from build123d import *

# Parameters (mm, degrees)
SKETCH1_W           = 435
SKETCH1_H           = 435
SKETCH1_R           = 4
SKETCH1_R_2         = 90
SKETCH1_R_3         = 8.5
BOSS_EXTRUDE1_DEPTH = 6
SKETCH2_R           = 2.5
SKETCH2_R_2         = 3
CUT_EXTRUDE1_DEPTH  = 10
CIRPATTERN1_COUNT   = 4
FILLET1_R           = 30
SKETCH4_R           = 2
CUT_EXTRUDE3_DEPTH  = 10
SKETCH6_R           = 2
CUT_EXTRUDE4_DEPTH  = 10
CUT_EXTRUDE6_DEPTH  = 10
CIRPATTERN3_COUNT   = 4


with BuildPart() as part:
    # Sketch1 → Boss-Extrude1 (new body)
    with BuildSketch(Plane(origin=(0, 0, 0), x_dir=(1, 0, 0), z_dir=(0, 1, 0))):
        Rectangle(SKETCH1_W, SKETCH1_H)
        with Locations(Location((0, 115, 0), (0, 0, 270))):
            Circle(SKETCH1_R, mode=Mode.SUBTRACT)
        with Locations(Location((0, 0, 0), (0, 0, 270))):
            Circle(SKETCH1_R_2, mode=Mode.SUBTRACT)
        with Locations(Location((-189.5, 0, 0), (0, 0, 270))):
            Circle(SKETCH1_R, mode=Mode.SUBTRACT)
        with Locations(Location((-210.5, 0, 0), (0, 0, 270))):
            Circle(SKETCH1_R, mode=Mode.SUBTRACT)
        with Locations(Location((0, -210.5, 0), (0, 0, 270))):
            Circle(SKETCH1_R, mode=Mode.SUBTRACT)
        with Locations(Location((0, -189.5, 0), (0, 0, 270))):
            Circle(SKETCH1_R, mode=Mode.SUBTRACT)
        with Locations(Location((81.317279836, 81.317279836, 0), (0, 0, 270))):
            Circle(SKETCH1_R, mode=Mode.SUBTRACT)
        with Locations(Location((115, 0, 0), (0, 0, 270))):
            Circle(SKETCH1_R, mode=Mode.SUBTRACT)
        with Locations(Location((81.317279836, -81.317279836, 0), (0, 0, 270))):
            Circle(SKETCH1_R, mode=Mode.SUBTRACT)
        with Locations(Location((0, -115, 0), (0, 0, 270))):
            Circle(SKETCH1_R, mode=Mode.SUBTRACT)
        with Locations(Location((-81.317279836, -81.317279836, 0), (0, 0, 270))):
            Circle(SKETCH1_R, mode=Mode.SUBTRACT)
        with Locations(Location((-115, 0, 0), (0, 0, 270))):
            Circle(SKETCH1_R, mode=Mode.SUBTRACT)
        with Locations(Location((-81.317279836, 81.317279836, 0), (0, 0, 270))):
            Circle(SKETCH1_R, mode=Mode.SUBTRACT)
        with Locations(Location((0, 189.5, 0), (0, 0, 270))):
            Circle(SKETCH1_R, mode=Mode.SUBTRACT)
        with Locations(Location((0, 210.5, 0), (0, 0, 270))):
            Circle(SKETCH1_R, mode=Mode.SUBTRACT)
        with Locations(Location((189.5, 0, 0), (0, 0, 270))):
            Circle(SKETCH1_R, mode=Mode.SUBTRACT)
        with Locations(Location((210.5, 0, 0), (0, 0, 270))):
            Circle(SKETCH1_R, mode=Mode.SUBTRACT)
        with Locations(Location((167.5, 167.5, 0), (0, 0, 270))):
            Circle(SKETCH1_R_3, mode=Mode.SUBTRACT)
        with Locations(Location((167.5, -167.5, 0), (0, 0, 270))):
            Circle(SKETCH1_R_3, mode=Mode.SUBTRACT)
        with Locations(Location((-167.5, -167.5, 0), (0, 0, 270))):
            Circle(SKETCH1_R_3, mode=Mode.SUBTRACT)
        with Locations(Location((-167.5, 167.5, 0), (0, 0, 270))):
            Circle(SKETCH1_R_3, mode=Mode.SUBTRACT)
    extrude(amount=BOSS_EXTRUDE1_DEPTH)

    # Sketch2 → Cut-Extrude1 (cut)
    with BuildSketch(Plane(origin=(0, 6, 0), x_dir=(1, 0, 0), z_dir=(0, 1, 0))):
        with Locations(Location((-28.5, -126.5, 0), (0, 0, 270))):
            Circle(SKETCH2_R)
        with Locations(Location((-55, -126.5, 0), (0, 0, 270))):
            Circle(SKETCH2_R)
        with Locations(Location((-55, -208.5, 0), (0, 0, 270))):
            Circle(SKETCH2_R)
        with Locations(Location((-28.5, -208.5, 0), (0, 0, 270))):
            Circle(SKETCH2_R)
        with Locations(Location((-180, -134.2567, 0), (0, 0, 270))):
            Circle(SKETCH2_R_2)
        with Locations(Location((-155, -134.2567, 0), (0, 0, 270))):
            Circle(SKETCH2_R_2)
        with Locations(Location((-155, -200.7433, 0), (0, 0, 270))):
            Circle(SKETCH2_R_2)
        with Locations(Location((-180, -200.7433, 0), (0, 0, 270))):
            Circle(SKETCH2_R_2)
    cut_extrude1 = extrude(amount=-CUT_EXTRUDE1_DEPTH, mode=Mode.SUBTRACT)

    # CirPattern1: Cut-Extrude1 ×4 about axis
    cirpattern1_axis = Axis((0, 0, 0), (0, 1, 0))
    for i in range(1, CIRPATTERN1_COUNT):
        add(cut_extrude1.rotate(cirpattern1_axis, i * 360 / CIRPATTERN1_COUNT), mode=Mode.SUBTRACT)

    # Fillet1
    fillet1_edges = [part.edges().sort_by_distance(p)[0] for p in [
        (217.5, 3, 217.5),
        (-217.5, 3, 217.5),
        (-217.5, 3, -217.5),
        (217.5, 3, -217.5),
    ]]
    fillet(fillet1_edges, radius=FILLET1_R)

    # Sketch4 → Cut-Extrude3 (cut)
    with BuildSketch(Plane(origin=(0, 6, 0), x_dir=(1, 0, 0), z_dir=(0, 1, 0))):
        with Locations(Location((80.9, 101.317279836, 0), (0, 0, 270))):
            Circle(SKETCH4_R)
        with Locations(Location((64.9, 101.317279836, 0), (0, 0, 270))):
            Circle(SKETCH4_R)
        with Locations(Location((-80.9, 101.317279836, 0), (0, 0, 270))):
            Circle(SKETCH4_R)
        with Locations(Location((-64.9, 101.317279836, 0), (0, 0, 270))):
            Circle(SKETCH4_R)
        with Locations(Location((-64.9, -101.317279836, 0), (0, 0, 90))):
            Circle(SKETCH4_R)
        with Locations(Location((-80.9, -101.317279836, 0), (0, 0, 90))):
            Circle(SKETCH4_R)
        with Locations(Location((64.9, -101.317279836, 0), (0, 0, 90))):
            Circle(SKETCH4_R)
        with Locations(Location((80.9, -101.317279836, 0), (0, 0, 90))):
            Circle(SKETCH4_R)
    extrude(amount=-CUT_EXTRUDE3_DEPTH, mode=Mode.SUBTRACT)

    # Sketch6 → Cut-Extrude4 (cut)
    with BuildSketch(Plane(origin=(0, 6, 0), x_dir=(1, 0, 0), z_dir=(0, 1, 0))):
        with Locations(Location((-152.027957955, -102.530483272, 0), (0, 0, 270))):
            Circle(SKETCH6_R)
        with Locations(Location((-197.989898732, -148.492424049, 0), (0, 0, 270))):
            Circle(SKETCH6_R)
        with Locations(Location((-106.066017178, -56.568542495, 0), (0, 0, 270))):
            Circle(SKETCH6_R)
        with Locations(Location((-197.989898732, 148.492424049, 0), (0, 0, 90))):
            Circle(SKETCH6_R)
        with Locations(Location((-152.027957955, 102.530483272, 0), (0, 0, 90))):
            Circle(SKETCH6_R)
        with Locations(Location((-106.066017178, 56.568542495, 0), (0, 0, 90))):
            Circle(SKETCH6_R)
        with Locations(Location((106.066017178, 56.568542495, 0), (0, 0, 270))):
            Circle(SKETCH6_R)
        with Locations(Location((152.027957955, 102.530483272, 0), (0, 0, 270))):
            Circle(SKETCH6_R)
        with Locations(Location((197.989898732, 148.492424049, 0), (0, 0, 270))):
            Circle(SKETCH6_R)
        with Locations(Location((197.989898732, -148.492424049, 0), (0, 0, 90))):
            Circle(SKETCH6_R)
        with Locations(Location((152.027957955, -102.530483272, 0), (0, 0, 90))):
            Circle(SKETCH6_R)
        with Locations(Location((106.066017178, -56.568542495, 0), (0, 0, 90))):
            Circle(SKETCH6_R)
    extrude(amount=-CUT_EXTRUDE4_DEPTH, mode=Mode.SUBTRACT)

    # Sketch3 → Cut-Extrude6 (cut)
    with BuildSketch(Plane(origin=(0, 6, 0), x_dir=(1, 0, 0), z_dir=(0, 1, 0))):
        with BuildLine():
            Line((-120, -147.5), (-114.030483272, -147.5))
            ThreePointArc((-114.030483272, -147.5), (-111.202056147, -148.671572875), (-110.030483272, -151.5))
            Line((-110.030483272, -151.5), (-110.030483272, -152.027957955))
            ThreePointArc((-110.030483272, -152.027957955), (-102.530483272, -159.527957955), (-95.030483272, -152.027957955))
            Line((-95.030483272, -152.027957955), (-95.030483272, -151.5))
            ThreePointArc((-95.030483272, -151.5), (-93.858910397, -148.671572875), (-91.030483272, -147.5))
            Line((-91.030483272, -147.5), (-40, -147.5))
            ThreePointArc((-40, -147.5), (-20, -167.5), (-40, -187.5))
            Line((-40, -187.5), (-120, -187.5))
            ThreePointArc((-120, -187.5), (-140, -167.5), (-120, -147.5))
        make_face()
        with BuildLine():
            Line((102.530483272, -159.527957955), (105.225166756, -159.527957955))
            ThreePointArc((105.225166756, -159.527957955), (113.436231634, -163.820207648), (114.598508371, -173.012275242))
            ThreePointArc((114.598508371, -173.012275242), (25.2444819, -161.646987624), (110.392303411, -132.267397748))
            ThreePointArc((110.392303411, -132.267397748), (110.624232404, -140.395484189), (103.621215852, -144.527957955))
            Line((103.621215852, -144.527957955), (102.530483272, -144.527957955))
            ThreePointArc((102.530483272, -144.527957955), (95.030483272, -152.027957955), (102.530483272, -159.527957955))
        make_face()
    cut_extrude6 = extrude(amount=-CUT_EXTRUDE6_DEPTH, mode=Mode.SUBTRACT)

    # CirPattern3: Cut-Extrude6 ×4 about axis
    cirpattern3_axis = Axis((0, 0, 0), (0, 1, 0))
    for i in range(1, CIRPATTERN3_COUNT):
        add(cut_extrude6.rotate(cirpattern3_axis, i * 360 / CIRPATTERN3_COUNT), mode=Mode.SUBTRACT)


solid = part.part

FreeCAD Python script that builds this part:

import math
import FreeCAD as App
import Part
import Sketcher
from FreeCAD import Vector


def edges_at(feature, points):
    """Names of the edges that pass closest to the given points."""
    edges = feature.Shape.Edges
    near = lambda p: min(range(len(edges)), key=lambda i: edges[i].distToShape(Part.Vertex(*p))[0])
    return sorted({f"Edge{near(p) + 1}" for p in points})

doc = App.newDocument("Part")
body = doc.addObject("PartDesign::Body", "Body")

sketch1 = body.newObject("Sketcher::SketchObject", "Sketch")
sketch1.AttachmentSupport = (doc.getObject("XZ_Plane"), [""])
sketch1.MapMode = "FlatFace"
sketch1.addGeometry(Part.LineSegment(Vector(-217.5, -217.5, 0), Vector(-217.5, 217.5, 0)), False)
sketch1.addGeometry(Part.LineSegment(Vector(-217.5, 217.5, 0), Vector(217.5, 217.5, 0)), False)
sketch1.addGeometry(Part.LineSegment(Vector(217.5, 217.5, 0), Vector(217.5, -217.5, 0)), False)
sketch1.addGeometry(Part.LineSegment(Vector(217.5, -217.5, 0), Vector(-217.5, -217.5, 0)), False)
sketch1.addGeometry(Part.Circle(Vector(-167.5, 167.5, 0), Vector(0, 0, 1), 8.5), False)
sketch1.addGeometry(Part.Circle(Vector(-81.3, 81.3, 0), Vector(0, 0, 1), 4), False)
sketch1.addGeometry(Part.Circle(Vector(0, 210.5, 0), Vector(0, 0, 1), 4), False)
sketch1.addGeometry(Part.Circle(Vector(0, 189.5, 0), Vector(0, 0, 1), 4), False)
sketch1.addGeometry(Part.Circle(Vector(0, 115, 0), Vector(0, 0, 1), 4), False)
sketch1.addGeometry(Part.Circle(Vector(167.5, 167.5, 0), Vector(0, 0, 1), 8.5), False)
sketch1.addGeometry(Part.Circle(Vector(81.3, 81.3, 0), Vector(0, 0, 1), 4), False)
sketch1.addGeometry(Part.Circle(Vector(-210.5, 0, 0), Vector(0, 0, 1), 4), False)
sketch1.addGeometry(Part.Circle(Vector(-189.5, 0, 0), Vector(0, 0, 1), 4), False)
sketch1.addGeometry(Part.Circle(Vector(-115, 0, 0), Vector(0, 0, 1), 4), False)
sketch1.addGeometry(Part.Circle(Vector(-81.3, -81.3, 0), Vector(0, 0, 1), 4), False)
sketch1.addGeometry(Part.Circle(Vector(-167.5, -167.5, 0), Vector(0, 0, 1), 8.5), False)
sketch1.addGeometry(Part.Circle(Vector(0, 0, 0), Vector(0, 0, 1), 90), False)
sketch1.addGeometry(Part.Circle(Vector(81.3, -81.3, 0), Vector(0, 0, 1), 4), False)
sketch1.addGeometry(Part.Circle(Vector(115, 0, 0), Vector(0, 0, 1), 4), False)
sketch1.addGeometry(Part.Circle(Vector(189.5, 0, 0), Vector(0, 0, 1), 4), False)
sketch1.addGeometry(Part.Circle(Vector(210.5, 0, 0), Vector(0, 0, 1), 4), False)
sketch1.addGeometry(Part.Circle(Vector(0, -115, 0), Vector(0, 0, 1), 4), False)
sketch1.addGeometry(Part.Circle(Vector(0, -189.5, 0), Vector(0, 0, 1), 4), False)
sketch1.addGeometry(Part.Circle(Vector(0, -210.5, 0), Vector(0, 0, 1), 4), False)
sketch1.addGeometry(Part.Circle(Vector(167.5, -167.5, 0), Vector(0, 0, 1), 8.5), False)
sketch1.addConstraint(Sketcher.Constraint("Coincident", 0, 2, 1, 1))
sketch1.addConstraint(Sketcher.Constraint("Coincident", 1, 2, 2, 1))
sketch1.addConstraint(Sketcher.Constraint("Coincident", 2, 2, 3, 1))
sketch1.addConstraint(Sketcher.Constraint("Coincident", 3, 2, 0, 1))
sketch1.addConstraint(Sketcher.Constraint("Vertical", 0))
sketch1.addConstraint(Sketcher.Constraint("Horizontal", 1))
sketch1.addConstraint(Sketcher.Constraint("Vertical", 2))
sketch1.addConstraint(Sketcher.Constraint("Horizontal", 3))
sketch1.addConstraint(Sketcher.Constraint("Coincident", 16, 3, -1, 1))
sketch1.addConstraint(Sketcher.Constraint("Equal", 5, 6))
sketch1.addConstraint(Sketcher.Constraint("Equal", 6, 7))
sketch1.addConstraint(Sketcher.Constraint("Equal", 7, 8))
sketch1.addConstraint(Sketcher.Constraint("Equal", 4, 9))
sketch1.addConstraint(Sketcher.Constraint("Equal", 8, 10))
sketch1.addConstraint(Sketcher.Constraint("Equal", 10, 11))
sketch1.addConstraint(Sketcher.Constraint("Equal", 11, 12))
sketch1.addConstraint(Sketcher.Constraint("Equal", 12, 13))
sketch1.addConstraint(Sketcher.Constraint("Equal", 13, 14))
sketch1.addConstraint(Sketcher.Constraint("Equal", 9, 15))
sketch1.addConstraint(Sketcher.Constraint("Equal", 14, 17))
sketch1.addConstraint(Sketcher.Constraint("Equal", 17, 18))
sketch1.addConstraint(Sketcher.Constraint("Equal", 18, 19))
sketch1.addConstraint(Sketcher.Constraint("Equal", 19, 20))
sketch1.addConstraint(Sketcher.Constraint("Equal", 20, 21))
sketch1.addConstraint(Sketcher.Constraint("Equal", 21, 22))
sketch1.addConstraint(Sketcher.Constraint("Equal", 22, 23))
sketch1.addConstraint(Sketcher.Constraint("Equal", 15, 24))
sketch1.addConstraint(Sketcher.Constraint("Symmetric", 10, 3, 14, 3, -1, 1))
sketch1.addConstraint(Sketcher.Constraint("Symmetric", 9, 3, 15, 3, -1, 1))
sketch1.addConstraint(Sketcher.Constraint("Symmetric", 5, 3, 17, 3, -1, 1))
sketch1.addConstraint(Sketcher.Constraint("Symmetric", 13, 3, 18, 3, -1, 1))
sketch1.addConstraint(Sketcher.Constraint("Symmetric", 12, 3, 19, 3, -1, 1))
sketch1.addConstraint(Sketcher.Constraint("Symmetric", 11, 3, 20, 3, -1, 1))
sketch1.addConstraint(Sketcher.Constraint("Symmetric", 8, 3, 21, 3, -1, 1))
sketch1.addConstraint(Sketcher.Constraint("Symmetric", 7, 3, 22, 3, -1, 1))
sketch1.addConstraint(Sketcher.Constraint("Symmetric", 6, 3, 23, 3, -1, 1))
sketch1.addConstraint(Sketcher.Constraint("Symmetric", 4, 3, 24, 3, -1, 1))
sketch1.addConstraint(Sketcher.Constraint("Symmetric", 0, 2, 2, 2, -1, 1))
sketch1.addConstraint(Sketcher.Constraint("Symmetric", 4, 3, 9, 3, -2))
sketch1.addConstraint(Sketcher.Constraint("Symmetric", 5, 3, 10, 3, -2))
sketch1.addConstraint(Sketcher.Constraint("PointOnObject", 6, 3, -2))
sketch1.addConstraint(Sketcher.Constraint("PointOnObject", 7, 3, -2))
sketch1.addConstraint(Sketcher.Constraint("PointOnObject", 8, 3, -2))
sketch1.addConstraint(Sketcher.Constraint("PointOnObject", 11, 3, -1))
sketch1.addConstraint(Sketcher.Constraint("PointOnObject", 12, 3, -1))
sketch1.addConstraint(Sketcher.Constraint("PointOnObject", 13, 3, -1))
sketch1.addConstraint(Sketcher.Constraint("Equal", 3, 0))
sketch1.addConstraint(Sketcher.Constraint("Diameter", 4, 17.0))
sketch1.addConstraint(Sketcher.Constraint("Diameter", 5, 8.0))
sketch1.addConstraint(Sketcher.Constraint("Diameter", 16, 180.0))
sketch1.addConstraint(Sketcher.Constraint("DistanceX", 1, 1, 1, 2, 435.0))
sketch1.addConstraint(Sketcher.Constraint("DistanceY", -1, 1, 8, 3, 115.0))
sketch1.addConstraint(Sketcher.Constraint("DistanceX", 13, 3, -1, 1, 115.0))
sketch1.addConstraint(Sketcher.Constraint("DistanceY", 4, 3, 6, 3, 43.0))
sketch1.addConstraint(Sketcher.Constraint("DistanceY", 7, 3, 6, 3, 21.0))
sketch1.addConstraint(Sketcher.Constraint("DistanceX", 4, 3, 9, 3, 335.0))
sketch1.addConstraint(Sketcher.Constraint("DistanceX", 11, 3, 4, 3, 43.0))
sketch1.addConstraint(Sketcher.Constraint("DistanceX", 11, 3, 12, 3, 21.0))
sketch1.addConstraint(Sketcher.Constraint("DistanceY", 4, 3, 0, 2, 50.0))
sketch1.addConstraint(Sketcher.Constraint("DistanceX", 5, 3, -1, 1, 81.31728))
sketch1.addConstraint(Sketcher.Constraint("DistanceY", -1, 1, 5, 3, 81.31728))
pad1 = body.newObject("PartDesign::Pad", "Pad")
pad1.Profile = sketch1
pad1.Length = 6
pad1.Reversed = True

sketch2 = body.newObject("Sketcher::SketchObject", "Sketch001")
sketch2.AttachmentSupport = (doc.getObject("XZ_Plane"), [""])
sketch2.MapMode = "FlatFace"
sketch2.AttachmentOffset = App.Placement(Vector(0, 0, -6), App.Rotation())
sketch2.addGeometry(Part.Circle(Vector(-28.5, 126.5, 0), Vector(0, 0, 1), 2.5), False)
sketch2.addGeometry(Part.Circle(Vector(-55, 126.5, 0), Vector(0, 0, 1), 2.5), False)
sketch2.addGeometry(Part.Circle(Vector(-55, 208.5, 0), Vector(0, 0, 1), 2.5), False)
sketch2.addGeometry(Part.Circle(Vector(-28.5, 208.5, 0), Vector(0, 0, 1), 2.5), False)
sketch2.addGeometry(Part.Circle(Vector(-180, 134.3, 0), Vector(0, 0, 1), 3), False)
sketch2.addGeometry(Part.Circle(Vector(-155, 134.3, 0), Vector(0, 0, 1), 3), False)
sketch2.addGeometry(Part.Circle(Vector(-155, 200.7, 0), Vector(0, 0, 1), 3), False)
sketch2.addGeometry(Part.Circle(Vector(-180, 200.7, 0), Vector(0, 0, 1), 3), False)
sketch2.addConstraint(Sketcher.Constraint("Equal", 0, 1))
sketch2.addConstraint(Sketcher.Constraint("Equal", 1, 2))
sketch2.addConstraint(Sketcher.Constraint("Equal", 2, 3))
sketch2.addConstraint(Sketcher.Constraint("Equal", 4, 5))
sketch2.addConstraint(Sketcher.Constraint("Equal", 5, 6))
sketch2.addConstraint(Sketcher.Constraint("Equal", 6, 7))
sketch2.addConstraint(Sketcher.Constraint("Horizontal", 0, 3, 1, 3))
sketch2.addConstraint(Sketcher.Constraint("Horizontal", 2, 3, 3, 3))
sketch2.addConstraint(Sketcher.Constraint("Horizontal", 4, 3, 5, 3))
sketch2.addConstraint(Sketcher.Constraint("Horizontal", 6, 3, 7, 3))
sketch2.addConstraint(Sketcher.Constraint("Vertical", 1, 3, 2, 3))
sketch2.addConstraint(Sketcher.Constraint("Vertical", 0, 3, 3, 3))
sketch2.addConstraint(Sketcher.Constraint("Vertical", 5, 3, 6, 3))
sketch2.addConstraint(Sketcher.Constraint("Vertical", 4, 3, 7, 3))
sketch2.addConstraint(Sketcher.Constraint("Diameter", 0, 5.0))
sketch2.addConstraint(Sketcher.Constraint("Diameter", 4, 6.0))
sketch2.addConstraint(Sketcher.Constraint("DistanceX", 1, 3, -1, 1, 55.0))
sketch2.addConstraint(Sketcher.Constraint("DistanceX", 4, 3, -1, 1, 180.0))
sketch2.addConstraint(Sketcher.Constraint("DistanceX", 5, 3, -1, 1, 155.0))
sketch2.addConstraint(Sketcher.Constraint("DistanceY", 1, 3, 2, 3, 82.0))
sketch2.addConstraint(Sketcher.Constraint("DistanceX", 0, 3, -1, 1, 28.5))
sketch2.addConstraint(Sketcher.Constraint("DistanceY", -1, 1, 0, 3, 126.5))
sketch2.addConstraint(Sketcher.Constraint("DistanceY", -1, 1, 4, 3, 134.2567))
sketch2.addConstraint(Sketcher.Constraint("DistanceY", -1, 1, 6, 3, 200.7433))
pocket1 = body.newObject("PartDesign::Pocket", "Pocket")
pocket1.Profile = sketch2
pocket1.Length = 10
pocket1.Reversed = True
doc.recompute()

polarpattern = body.newObject("PartDesign::PolarPattern", "PolarPattern")
polarpattern.Originals = [pocket1]
polarpattern.Axis = (doc.getObject("Y_Axis"), [""])
polarpattern.Angle = 360
polarpattern.Occurrences = 4
body.Tip = polarpattern
doc.recompute()

fillet = body.newObject("PartDesign::Fillet", "Fillet")
fillet.Base = (polarpattern, edges_at(polarpattern, [
    (217.5, 3, 217.5),
    (-217.5, 3, 217.5),
    (-217.5, 3, -217.5),
    (217.5, 3, -217.5),
]))
fillet.Radius = 30

sketch3 = body.newObject("Sketcher::SketchObject", "Sketch002")
sketch3.AttachmentSupport = (doc.getObject("XZ_Plane"), [""])
sketch3.MapMode = "FlatFace"
sketch3.AttachmentOffset = App.Placement(Vector(0, 0, -6), App.Rotation())
sketch3.addGeometry(Part.Circle(Vector(80.9, -101.3, 0), Vector(0, 0, 1), 2), False)
sketch3.addGeometry(Part.Circle(Vector(64.9, -101.3, 0), Vector(0, 0, 1), 2), False)
sketch3.addGeometry(Part.Circle(Vector(-80.9, -101.3, 0), Vector(0, 0, 1), 2), False)
sketch3.addGeometry(Part.Circle(Vector(-64.9, -101.3, 0), Vector(0, 0, 1), 2), False)
sketch3.addGeometry(Part.Circle(Vector(-64.9, 101.3, 0), Vector(0, 0, 1), 2), False)
sketch3.addGeometry(Part.Circle(Vector(-80.9, 101.3, 0), Vector(0, 0, 1), 2), False)
sketch3.addGeometry(Part.Circle(Vector(64.9, 101.3, 0), Vector(0, 0, 1), 2), False)
sketch3.addGeometry(Part.Circle(Vector(80.9, 101.3, 0), Vector(0, 0, 1), 2), False)
sketch3.addConstraint(Sketcher.Constraint("Equal", 0, 1))
sketch3.addConstraint(Sketcher.Constraint("Equal", 1, 2))
sketch3.addConstraint(Sketcher.Constraint("Equal", 2, 3))
sketch3.addConstraint(Sketcher.Constraint("Equal", 3, 4))
sketch3.addConstraint(Sketcher.Constraint("Equal", 4, 5))
sketch3.addConstraint(Sketcher.Constraint("Equal", 5, 6))
sketch3.addConstraint(Sketcher.Constraint("Equal", 6, 7))
sketch3.addConstraint(Sketcher.Constraint("Symmetric", 1, 3, 4, 3, -1, 1))
sketch3.addConstraint(Sketcher.Constraint("Symmetric", 0, 3, 5, 3, -1, 1))
sketch3.addConstraint(Sketcher.Constraint("Symmetric", 3, 3, 6, 3, -1, 1))
sketch3.addConstraint(Sketcher.Constraint("Symmetric", 2, 3, 7, 3, -1, 1))
sketch3.addConstraint(Sketcher.Constraint("Symmetric", 0, 3, 2, 3, -2))
sketch3.addConstraint(Sketcher.Constraint("Symmetric", 1, 3, 3, 3, -2))
sketch3.addConstraint(Sketcher.Constraint("Horizontal", 0, 3, 1, 3))
sketch3.addConstraint(Sketcher.Constraint("Diameter", 0, 4.0))
sketch3.addConstraint(Sketcher.Constraint("DistanceX", 1, 3, 0, 3, 16.0))
sketch3.addConstraint(Sketcher.Constraint("DistanceX", -1, 1, 0, 3, 80.9))
sketch3.addConstraint(Sketcher.Constraint("DistanceY", 0, 3, -1, 1, 101.31728))
pocket2 = body.newObject("PartDesign::Pocket", "Pocket001")
pocket2.Profile = sketch3
pocket2.Length = 10
pocket2.Reversed = True

sketch4 = body.newObject("Sketcher::SketchObject", "Sketch003")
sketch4.AttachmentSupport = (doc.getObject("XZ_Plane"), [""])
sketch4.MapMode = "FlatFace"
sketch4.AttachmentOffset = App.Placement(Vector(0, 0, -6), App.Rotation())
sketch4.addGeometry(Part.Circle(Vector(-152, 102.5, 0), Vector(0, 0, 1), 2), False)
sketch4.addGeometry(Part.Circle(Vector(-198, 148.5, 0), Vector(0, 0, 1), 2), False)
sketch4.addGeometry(Part.Circle(Vector(-106.1, 56.6, 0), Vector(0, 0, 1), 2), False)
sketch4.addGeometry(Part.Circle(Vector(-198, -148.5, 0), Vector(0, 0, 1), 2), False)
sketch4.addGeometry(Part.Circle(Vector(-152, -102.5, 0), Vector(0, 0, 1), 2), False)
sketch4.addGeometry(Part.Circle(Vector(-106.1, -56.6, 0), Vector(0, 0, 1), 2), False)
sketch4.addGeometry(Part.Circle(Vector(106.1, -56.6, 0), Vector(0, 0, 1), 2), False)
sketch4.addGeometry(Part.Circle(Vector(152, -102.5, 0), Vector(0, 0, 1), 2), False)
sketch4.addGeometry(Part.Circle(Vector(198, -148.5, 0), Vector(0, 0, 1), 2), False)
sketch4.addGeometry(Part.Circle(Vector(198, 148.5, 0), Vector(0, 0, 1), 2), False)
sketch4.addGeometry(Part.Circle(Vector(152, 102.5, 0), Vector(0, 0, 1), 2), False)
sketch4.addGeometry(Part.Circle(Vector(106.1, 56.6, 0), Vector(0, 0, 1), 2), False)
sketch4.addConstraint(Sketcher.Constraint("Equal", 0, 1))
sketch4.addConstraint(Sketcher.Constraint("Equal", 1, 2))
sketch4.addConstraint(Sketcher.Constraint("Equal", 2, 3))
sketch4.addConstraint(Sketcher.Constraint("Equal", 3, 4))
sketch4.addConstraint(Sketcher.Constraint("Equal", 4, 5))
sketch4.addConstraint(Sketcher.Constraint("Equal", 5, 6))
sketch4.addConstraint(Sketcher.Constraint("Equal", 6, 7))
sketch4.addConstraint(Sketcher.Constraint("Equal", 7, 8))
sketch4.addConstraint(Sketcher.Constraint("Equal", 8, 9))
sketch4.addConstraint(Sketcher.Constraint("Equal", 9, 10))
sketch4.addConstraint(Sketcher.Constraint("Equal", 10, 11))
sketch4.addConstraint(Sketcher.Constraint("Symmetric", 2, 3, 6, 3, -1, 1))
sketch4.addConstraint(Sketcher.Constraint("Symmetric", 0, 3, 7, 3, -1, 1))
sketch4.addConstraint(Sketcher.Constraint("Symmetric", 1, 3, 8, 3, -1, 1))
sketch4.addConstraint(Sketcher.Constraint("Symmetric", 3, 3, 9, 3, -1, 1))
sketch4.addConstraint(Sketcher.Constraint("Symmetric", 4, 3, 10, 3, -1, 1))
sketch4.addConstraint(Sketcher.Constraint("Symmetric", 5, 3, 11, 3, -1, 1))
sketch4.addConstraint(Sketcher.Constraint("Symmetric", 5, 3, 6, 3, -2))
sketch4.addConstraint(Sketcher.Constraint("Symmetric", 4, 3, 7, 3, -2))
sketch4.addConstraint(Sketcher.Constraint("Symmetric", 3, 3, 8, 3, -2))
sketch4.addConstraint(Sketcher.Constraint("Diameter", 0, 4.0))
sketch4.addConstraint(Sketcher.Constraint("DistanceX", 1, 3, -1, 1, 197.989899))
sketch4.addConstraint(Sketcher.Constraint("DistanceX", 1, 3, 0, 3, 45.961941))
sketch4.addConstraint(Sketcher.Constraint("DistanceY", 0, 3, 1, 3, 45.961941))
sketch4.addConstraint(Sketcher.Constraint("DistanceX", 0, 3, 2, 3, 45.961941))
sketch4.addConstraint(Sketcher.Constraint("DistanceY", 2, 3, 0, 3, 45.961941))
sketch4.addConstraint(Sketcher.Constraint("DistanceY", 3, 3, 1, 3, 296.984848))
pocket3 = body.newObject("PartDesign::Pocket", "Pocket002")
pocket3.Profile = sketch4
pocket3.Length = 10
pocket3.Reversed = True

sketch5 = body.newObject("Sketcher::SketchObject", "Sketch004")
sketch5.AttachmentSupport = (doc.getObject("XZ_Plane"), [""])
sketch5.MapMode = "FlatFace"
sketch5.AttachmentOffset = App.Placement(Vector(0, 0, -6), App.Rotation())
sketch5.addGeometry(Part.LineSegment(Vector(-114, 147.5, 0), Vector(-120, 147.5, 0)), False)
sketch5.addGeometry(Part.ArcOfCircle(Part.Circle(Vector(-120, 167.5, 0), Vector(0, 0, 1), 20), math.radians(90), math.radians(270)), False)
sketch5.addGeometry(Part.LineSegment(Vector(-120, 187.5, 0), Vector(-40, 187.5, 0)), False)
sketch5.addGeometry(Part.ArcOfCircle(Part.Circle(Vector(-40, 167.5, 0), Vector(0, 0, 1), 20), math.radians(-90), math.radians(90)), False)
sketch5.addGeometry(Part.LineSegment(Vector(-40, 147.5, 0), Vector(-91, 147.5, 0)), False)
sketch5.addGeometry(Part.ArcOfCircle(Part.Circle(Vector(-91, 151.5, 0), Vector(0, 0, 1), 4), math.radians(180), math.radians(270)), False)
sketch5.addGeometry(Part.LineSegment(Vector(-95, 151.5, 0), Vector(-95, 152, 0)), False)
sketch5.addGeometry(Part.ArcOfCircle(Part.Circle(Vector(-102.5, 152, 0), Vector(0, 0, 1), 7.5), math.radians(0), math.radians(180)), False)
sketch5.addGeometry(Part.LineSegment(Vector(-110, 152, 0), Vector(-110, 151.5, 0)), False)
sketch5.addGeometry(Part.ArcOfCircle(Part.Circle(Vector(-114, 151.5, 0), Vector(0, 0, 1), 4), math.radians(-90), math.radians(0)), False)
sketch5.addGeometry(Part.LineSegment(Vector(105.2, 159.5, 0), Vector(102.5, 159.5, 0)), False)
sketch5.addGeometry(Part.ArcOfCircle(Part.Circle(Vector(102.5, 152, 0), Vector(0, 0, 1), 7.5), math.radians(90), math.radians(270)), False)
sketch5.addGeometry(Part.LineSegment(Vector(102.5, 144.5, 0), Vector(103.6, 144.5, 0)), False)
sketch5.addGeometry(Part.ArcOfCircle(Part.Circle(Vector(103.6, 136.5, 0), Vector(0, 0, 1), 8), math.radians(-32), math.radians(90)), False)
sketch5.addGeometry(Part.ArcOfCircle(Part.Circle(Vector(71.2, 156.9, 0), Vector(0, 0, 1), 46.2), math.radians(20), math.radians(328)), False)
sketch5.addGeometry(Part.ArcOfCircle(Part.Circle(Vector(105.2, 169.5, 0), Vector(0, 0, 1), 10), math.radians(-90), math.radians(20)), False)
sketch5.addConstraint(Sketcher.Constraint("Tangent", 0, 2, 1, 2))
sketch5.addConstraint(Sketcher.Constraint("Tangent", 1, 1, 2, 1))
sketch5.addConstraint(Sketcher.Constraint("Tangent", 2, 2, 3, 2))
sketch5.addConstraint(Sketcher.Constraint("Tangent", 3, 1, 4, 1))
sketch5.addConstraint(Sketcher.Constraint("Tangent", 4, 2, 5, 2))
sketch5.addConstraint(Sketcher.Constraint("Tangent", 5, 1, 6, 1))
sketch5.addConstraint(Sketcher.Constraint("Tangent", 6, 2, 7, 1))
sketch5.addConstraint(Sketcher.Constraint("Tangent", 7, 2, 8, 1))
sketch5.addConstraint(Sketcher.Constraint("Tangent", 8, 2, 9, 2))
sketch5.addConstraint(Sketcher.Constraint("Tangent", 9, 1, 0, 1))
sketch5.addConstraint(Sketcher.Constraint("Tangent", 10, 2, 11, 1))
sketch5.addConstraint(Sketcher.Constraint("Tangent", 11, 2, 12, 1))
sketch5.addConstraint(Sketcher.Constraint("Tangent", 12, 2, 13, 2))
sketch5.addConstraint(Sketcher.Constraint("Tangent", 13, 1, 14, 2))
sketch5.addConstraint(Sketcher.Constraint("Tangent", 14, 1, 15, 2))
sketch5.addConstraint(Sketcher.Constraint("Tangent", 15, 1, 10, 1))
sketch5.addConstraint(Sketcher.Constraint("Horizontal", 0))
sketch5.addConstraint(Sketcher.Constraint("Horizontal", 2))
sketch5.addConstraint(Sketcher.Constraint("Horizontal", 4))
sketch5.addConstraint(Sketcher.Constraint("Vertical", 6))
sketch5.addConstraint(Sketcher.Constraint("Vertical", 8))
sketch5.addConstraint(Sketcher.Constraint("Horizontal", 10))
sketch5.addConstraint(Sketcher.Constraint("Horizontal", 12))
sketch5.addConstraint(Sketcher.Constraint("Equal", 1, 3))
sketch5.addConstraint(Sketcher.Constraint("Equal", 5, 9))
sketch5.addConstraint(Sketcher.Constraint("Equal", 7, 11))
sketch5.addConstraint(Sketcher.Constraint("Symmetric", 7, 3, 11, 3, -2))
sketch5.addConstraint(Sketcher.Constraint("Radius", 1, 20.0))
sketch5.addConstraint(Sketcher.Constraint("Radius", 5, 4.0))
sketch5.addConstraint(Sketcher.Constraint("Radius", 13, 8.0))
sketch5.addConstraint(Sketcher.Constraint("Radius", 15, 10.0))
sketch5.addConstraint(Sketcher.Constraint("Radius", 7, 7.5))
sketch5.addConstraint(Sketcher.Constraint("DistanceX", 2, 1, 2, 2, 80.0))
sketch5.addConstraint(Sketcher.Constraint("DistanceX", 1, 3, -1, 1, 120.0))
sketch5.addConstraint(Sketcher.Constraint("DistanceY", -1, 1, 1, 3, 167.5))
sketch5.addConstraint(Sketcher.Constraint("Radius", 14, 46.24835))
sketch5.addConstraint(Sketcher.Constraint("DistanceX", 5, 3, 13, 3, 194.651699))
sketch5.addConstraint(Sketcher.Constraint("DistanceX", 0, 2, 0, 1, 5.969517))
sketch5.addConstraint(Sketcher.Constraint("DistanceX", 10, 2, 10, 1, 2.694683))
sketch5.addConstraint(Sketcher.Constraint("DistanceY", 6, 1, 6, 2, 0.527958))
pocket4 = body.newObject("PartDesign::Pocket", "Pocket003")
pocket4.Profile = sketch5
pocket4.Length = 10
pocket4.Reversed = True
doc.recompute()

polarpattern2 = body.newObject("PartDesign::PolarPattern", "PolarPattern001")
polarpattern2.Originals = [pocket4]
polarpattern2.Axis = (doc.getObject("Y_Axis"), [""])
polarpattern2.Angle = 360
polarpattern2.Occurrences = 4
body.Tip = polarpattern2

doc.recompute()
